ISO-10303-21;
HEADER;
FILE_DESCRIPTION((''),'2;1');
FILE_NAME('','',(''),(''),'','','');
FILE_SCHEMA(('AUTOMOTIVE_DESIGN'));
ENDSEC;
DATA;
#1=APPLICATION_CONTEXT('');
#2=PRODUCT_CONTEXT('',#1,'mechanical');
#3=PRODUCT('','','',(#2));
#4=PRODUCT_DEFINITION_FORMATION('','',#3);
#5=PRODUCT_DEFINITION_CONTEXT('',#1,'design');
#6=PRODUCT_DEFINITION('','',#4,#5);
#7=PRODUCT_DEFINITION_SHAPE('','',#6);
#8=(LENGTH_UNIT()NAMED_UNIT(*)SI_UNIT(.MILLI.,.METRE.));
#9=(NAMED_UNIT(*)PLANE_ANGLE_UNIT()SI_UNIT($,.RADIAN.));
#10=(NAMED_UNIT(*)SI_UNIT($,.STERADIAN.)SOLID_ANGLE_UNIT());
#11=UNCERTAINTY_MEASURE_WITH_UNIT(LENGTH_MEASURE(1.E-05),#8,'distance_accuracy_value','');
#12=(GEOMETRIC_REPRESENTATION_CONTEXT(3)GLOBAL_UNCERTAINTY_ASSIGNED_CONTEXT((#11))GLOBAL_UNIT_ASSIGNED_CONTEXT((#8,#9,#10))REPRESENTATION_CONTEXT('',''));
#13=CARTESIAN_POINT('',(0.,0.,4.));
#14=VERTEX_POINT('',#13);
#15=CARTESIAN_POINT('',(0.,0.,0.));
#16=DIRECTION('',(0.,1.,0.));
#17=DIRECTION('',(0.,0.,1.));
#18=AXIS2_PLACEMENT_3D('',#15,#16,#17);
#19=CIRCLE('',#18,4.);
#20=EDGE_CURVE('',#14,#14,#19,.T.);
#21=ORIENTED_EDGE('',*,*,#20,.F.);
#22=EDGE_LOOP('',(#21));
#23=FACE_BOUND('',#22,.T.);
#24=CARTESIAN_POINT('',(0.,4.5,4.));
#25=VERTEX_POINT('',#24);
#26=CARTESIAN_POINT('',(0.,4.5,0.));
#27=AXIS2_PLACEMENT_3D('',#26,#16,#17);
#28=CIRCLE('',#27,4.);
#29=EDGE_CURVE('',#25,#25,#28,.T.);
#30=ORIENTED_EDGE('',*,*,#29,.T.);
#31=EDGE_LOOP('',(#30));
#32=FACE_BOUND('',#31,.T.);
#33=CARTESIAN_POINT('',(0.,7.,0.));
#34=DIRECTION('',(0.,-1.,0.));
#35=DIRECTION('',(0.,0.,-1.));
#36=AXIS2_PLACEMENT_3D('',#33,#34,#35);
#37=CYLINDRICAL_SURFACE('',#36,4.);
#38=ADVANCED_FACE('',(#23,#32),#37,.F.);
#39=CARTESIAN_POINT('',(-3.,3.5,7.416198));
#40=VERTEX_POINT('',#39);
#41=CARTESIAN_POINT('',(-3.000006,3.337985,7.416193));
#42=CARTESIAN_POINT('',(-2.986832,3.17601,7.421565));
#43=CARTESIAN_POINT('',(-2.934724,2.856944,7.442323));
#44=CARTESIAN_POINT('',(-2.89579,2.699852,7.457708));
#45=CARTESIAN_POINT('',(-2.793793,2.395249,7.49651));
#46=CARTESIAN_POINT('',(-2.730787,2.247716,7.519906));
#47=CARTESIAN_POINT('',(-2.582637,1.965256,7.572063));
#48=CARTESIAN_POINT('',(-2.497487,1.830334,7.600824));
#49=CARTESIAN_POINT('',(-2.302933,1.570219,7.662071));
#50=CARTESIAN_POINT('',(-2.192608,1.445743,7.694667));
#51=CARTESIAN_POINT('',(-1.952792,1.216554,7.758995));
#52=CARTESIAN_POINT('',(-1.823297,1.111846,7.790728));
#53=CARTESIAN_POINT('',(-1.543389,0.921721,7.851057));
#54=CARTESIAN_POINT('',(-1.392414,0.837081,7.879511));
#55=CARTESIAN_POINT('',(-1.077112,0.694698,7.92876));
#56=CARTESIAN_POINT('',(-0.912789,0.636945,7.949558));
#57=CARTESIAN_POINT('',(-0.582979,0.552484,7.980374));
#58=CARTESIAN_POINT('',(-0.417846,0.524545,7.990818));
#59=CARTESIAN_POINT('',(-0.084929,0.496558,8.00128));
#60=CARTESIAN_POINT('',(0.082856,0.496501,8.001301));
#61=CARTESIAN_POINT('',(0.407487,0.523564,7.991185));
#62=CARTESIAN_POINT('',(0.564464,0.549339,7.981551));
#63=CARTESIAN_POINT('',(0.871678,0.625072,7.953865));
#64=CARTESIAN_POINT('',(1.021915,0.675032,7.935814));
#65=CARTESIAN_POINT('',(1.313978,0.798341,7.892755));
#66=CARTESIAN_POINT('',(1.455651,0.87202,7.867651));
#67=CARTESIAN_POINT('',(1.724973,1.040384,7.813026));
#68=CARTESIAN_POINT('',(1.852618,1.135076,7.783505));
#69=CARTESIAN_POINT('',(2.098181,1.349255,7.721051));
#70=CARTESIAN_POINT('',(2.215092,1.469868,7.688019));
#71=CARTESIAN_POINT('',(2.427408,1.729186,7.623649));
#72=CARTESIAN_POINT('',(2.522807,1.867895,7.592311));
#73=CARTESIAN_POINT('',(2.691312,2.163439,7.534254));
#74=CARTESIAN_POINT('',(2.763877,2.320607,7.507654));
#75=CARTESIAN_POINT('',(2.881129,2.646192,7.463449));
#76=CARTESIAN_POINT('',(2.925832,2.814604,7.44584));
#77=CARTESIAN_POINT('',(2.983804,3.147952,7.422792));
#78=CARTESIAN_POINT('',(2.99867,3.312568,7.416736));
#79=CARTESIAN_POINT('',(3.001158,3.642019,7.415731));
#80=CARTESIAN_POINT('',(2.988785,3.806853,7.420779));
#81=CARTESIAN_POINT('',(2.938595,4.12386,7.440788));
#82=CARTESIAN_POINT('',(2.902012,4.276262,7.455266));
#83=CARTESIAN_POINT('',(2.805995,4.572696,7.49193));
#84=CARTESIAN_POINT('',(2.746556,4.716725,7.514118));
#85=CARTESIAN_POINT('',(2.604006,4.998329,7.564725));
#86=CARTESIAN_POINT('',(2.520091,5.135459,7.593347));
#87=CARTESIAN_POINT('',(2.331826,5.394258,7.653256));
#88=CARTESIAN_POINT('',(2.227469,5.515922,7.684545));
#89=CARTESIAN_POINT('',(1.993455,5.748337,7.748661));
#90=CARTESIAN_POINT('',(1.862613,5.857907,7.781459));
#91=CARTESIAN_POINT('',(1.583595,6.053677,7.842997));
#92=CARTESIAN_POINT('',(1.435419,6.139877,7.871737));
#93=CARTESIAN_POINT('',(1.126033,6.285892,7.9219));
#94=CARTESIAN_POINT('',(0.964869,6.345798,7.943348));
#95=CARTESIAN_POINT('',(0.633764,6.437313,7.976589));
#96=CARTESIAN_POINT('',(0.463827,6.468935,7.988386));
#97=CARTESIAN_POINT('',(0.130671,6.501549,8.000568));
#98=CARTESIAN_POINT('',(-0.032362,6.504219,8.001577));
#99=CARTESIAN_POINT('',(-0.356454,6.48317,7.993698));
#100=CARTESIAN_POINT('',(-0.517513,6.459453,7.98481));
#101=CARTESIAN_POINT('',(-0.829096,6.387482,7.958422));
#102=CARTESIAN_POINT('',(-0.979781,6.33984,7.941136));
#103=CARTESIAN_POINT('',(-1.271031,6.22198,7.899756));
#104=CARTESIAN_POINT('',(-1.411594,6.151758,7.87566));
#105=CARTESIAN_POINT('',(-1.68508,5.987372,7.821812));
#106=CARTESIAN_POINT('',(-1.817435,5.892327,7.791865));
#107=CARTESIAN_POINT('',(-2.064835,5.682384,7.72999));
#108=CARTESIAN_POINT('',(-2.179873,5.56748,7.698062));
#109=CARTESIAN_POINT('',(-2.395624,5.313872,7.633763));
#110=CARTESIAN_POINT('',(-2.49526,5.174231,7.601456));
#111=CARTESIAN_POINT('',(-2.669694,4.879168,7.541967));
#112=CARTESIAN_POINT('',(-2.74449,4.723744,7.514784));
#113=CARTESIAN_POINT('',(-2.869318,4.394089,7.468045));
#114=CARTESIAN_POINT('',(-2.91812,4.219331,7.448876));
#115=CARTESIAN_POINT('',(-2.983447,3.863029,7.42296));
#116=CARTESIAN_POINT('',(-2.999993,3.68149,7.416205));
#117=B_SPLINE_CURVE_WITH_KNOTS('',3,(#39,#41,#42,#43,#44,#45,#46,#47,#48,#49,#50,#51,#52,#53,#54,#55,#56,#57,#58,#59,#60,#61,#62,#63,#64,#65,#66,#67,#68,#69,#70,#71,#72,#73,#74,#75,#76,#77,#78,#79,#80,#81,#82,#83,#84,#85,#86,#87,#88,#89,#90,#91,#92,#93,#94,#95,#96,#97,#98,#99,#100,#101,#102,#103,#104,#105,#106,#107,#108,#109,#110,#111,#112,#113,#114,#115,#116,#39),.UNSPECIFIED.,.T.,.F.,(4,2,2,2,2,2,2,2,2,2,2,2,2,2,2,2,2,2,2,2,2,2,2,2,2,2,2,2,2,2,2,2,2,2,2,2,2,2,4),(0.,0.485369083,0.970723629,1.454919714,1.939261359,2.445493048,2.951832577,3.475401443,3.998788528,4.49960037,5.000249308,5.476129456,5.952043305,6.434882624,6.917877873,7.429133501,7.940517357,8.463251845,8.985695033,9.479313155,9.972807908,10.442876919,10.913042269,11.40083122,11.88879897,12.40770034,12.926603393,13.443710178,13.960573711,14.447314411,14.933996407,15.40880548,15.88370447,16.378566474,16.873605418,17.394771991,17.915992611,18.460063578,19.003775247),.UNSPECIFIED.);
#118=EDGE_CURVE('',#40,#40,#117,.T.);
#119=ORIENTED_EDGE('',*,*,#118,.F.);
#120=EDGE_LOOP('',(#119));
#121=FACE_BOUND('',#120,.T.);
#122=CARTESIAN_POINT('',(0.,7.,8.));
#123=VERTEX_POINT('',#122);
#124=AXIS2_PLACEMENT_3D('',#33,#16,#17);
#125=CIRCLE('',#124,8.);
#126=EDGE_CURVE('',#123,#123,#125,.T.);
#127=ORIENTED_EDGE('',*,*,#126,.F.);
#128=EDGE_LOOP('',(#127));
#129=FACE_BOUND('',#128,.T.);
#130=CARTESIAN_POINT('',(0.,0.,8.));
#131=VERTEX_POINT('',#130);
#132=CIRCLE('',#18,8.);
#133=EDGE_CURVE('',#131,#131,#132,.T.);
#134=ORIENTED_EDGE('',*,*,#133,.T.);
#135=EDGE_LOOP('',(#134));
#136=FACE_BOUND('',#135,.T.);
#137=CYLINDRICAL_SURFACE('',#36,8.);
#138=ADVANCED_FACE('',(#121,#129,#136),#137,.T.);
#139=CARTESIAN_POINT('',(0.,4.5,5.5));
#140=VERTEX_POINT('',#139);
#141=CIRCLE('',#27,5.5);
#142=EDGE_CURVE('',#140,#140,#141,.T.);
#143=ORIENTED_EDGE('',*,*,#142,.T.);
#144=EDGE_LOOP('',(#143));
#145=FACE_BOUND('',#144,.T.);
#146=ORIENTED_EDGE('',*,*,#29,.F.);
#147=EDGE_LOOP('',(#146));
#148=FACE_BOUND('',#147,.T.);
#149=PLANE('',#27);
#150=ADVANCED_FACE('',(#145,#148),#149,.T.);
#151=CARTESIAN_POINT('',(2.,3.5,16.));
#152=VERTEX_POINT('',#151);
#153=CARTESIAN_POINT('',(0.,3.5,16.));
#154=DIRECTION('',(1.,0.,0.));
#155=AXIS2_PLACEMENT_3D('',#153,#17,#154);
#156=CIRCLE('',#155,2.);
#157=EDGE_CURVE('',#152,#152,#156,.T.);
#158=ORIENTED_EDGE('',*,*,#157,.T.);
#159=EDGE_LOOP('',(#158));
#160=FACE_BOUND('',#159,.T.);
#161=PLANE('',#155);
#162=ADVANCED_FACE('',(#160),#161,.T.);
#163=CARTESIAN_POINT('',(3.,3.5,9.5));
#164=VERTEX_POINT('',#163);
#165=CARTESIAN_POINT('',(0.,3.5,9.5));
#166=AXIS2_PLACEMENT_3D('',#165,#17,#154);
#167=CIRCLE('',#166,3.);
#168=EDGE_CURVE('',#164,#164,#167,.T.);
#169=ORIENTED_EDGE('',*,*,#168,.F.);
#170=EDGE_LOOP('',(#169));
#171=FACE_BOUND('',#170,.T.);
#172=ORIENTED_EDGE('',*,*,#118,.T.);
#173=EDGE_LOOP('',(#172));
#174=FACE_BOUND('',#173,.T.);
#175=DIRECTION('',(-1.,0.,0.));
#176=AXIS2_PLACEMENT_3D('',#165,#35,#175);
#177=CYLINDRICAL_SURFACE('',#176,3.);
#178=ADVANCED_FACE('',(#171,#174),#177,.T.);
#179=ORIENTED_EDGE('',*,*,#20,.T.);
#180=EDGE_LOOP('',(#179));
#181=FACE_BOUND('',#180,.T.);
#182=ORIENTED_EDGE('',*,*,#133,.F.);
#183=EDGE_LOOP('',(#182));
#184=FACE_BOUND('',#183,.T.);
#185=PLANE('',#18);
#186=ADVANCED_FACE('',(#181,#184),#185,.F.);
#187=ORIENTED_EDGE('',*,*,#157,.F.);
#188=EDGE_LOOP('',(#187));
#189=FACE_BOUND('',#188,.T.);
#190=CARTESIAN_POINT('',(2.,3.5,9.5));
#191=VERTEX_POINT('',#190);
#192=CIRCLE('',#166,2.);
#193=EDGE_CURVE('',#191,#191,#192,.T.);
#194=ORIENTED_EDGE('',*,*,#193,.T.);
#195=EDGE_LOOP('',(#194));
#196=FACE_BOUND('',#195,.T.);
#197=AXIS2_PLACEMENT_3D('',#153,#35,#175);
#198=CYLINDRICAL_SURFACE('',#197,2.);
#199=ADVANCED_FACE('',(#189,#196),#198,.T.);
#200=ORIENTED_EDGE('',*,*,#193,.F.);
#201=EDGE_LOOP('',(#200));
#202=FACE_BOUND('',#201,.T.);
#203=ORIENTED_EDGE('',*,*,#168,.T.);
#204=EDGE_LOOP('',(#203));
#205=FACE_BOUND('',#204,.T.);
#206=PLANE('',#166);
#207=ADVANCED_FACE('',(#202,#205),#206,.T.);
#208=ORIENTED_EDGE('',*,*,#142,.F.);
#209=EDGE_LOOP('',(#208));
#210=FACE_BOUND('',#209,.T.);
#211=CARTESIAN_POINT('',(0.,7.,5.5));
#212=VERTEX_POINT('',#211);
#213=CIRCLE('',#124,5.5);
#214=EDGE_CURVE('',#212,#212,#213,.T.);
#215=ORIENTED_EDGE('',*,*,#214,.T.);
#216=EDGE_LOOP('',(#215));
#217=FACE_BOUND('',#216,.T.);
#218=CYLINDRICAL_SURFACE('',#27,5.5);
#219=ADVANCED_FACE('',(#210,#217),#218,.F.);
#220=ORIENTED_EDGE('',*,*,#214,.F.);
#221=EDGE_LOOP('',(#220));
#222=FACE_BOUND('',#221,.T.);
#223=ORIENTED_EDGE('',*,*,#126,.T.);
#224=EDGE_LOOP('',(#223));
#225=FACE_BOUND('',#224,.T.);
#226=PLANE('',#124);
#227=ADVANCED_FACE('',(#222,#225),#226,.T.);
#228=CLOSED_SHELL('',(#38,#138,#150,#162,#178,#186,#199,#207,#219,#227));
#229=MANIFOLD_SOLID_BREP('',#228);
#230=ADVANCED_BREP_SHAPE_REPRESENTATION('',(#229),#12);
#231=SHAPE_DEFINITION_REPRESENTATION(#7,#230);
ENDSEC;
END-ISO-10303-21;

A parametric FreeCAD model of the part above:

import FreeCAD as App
import Part
import Sketcher

V = App.Vector

doc = App.newDocument("Part")
body = doc.addObject("PartDesign::Body", "Body")

# Sketch on XZ plane
sketch1 = doc.addObject("Sketcher::SketchObject", "Sketch")
body.addObject(sketch1)
sketch1.AttachmentSupport = (doc.XZ_Plane, [""])
sketch1.MapMode = "FlatFace"
sketch1.addGeometry(Part.Circle(V(0, 0, 0), V(0, 0, 1), 8), False)
sketch1.addGeometry(Part.Circle(V(0, 0, 0), V(0, 0, 1), 4), False)
sketch1.addConstraint(Sketcher.Constraint("Coincident", 0, 3, -1, 1))
sketch1.addConstraint(Sketcher.Constraint("Coincident", 1, 3, -1, 1))
sketch1.addConstraint(Sketcher.Constraint("Diameter", 0, 16.0))
sketch1.addConstraint(Sketcher.Constraint("Diameter", 1, 8.0))
pad1 = doc.addObject("PartDesign::Pad", "Pad")
body.addObject(pad1)
pad1.Profile = sketch1
pad1.Length = 7
pad1.Reversed = True

# Sketch on XY plane
sketch2 = doc.addObject("Sketcher::SketchObject", "Sketch001")
body.addObject(sketch2)
sketch2.AttachmentSupport = (doc.XY_Plane, [""])
sketch2.MapMode = "FlatFace"
sketch2.addGeometry(Part.Circle(V(0, 3.5, 0), V(0, 0, 1), 3), False)
sketch2.addConstraint(Sketcher.Constraint("PointOnObject", 0, 3, -2))
sketch2.addConstraint(Sketcher.Constraint("Diameter", 0, 6.0))
sketch2.addConstraint(Sketcher.Constraint("DistanceY", -1, 1, 0, 3, 3.5))
pad2 = doc.addObject("PartDesign::Pad", "Pad001")
body.addObject(pad2)
pad2.Profile = sketch2
pad2.Length = 9.5

# Sketch on XZ plane
sketch3 = doc.addObject("Sketcher::SketchObject", "Sketch002")
body.addObject(sketch3)
sketch3.AttachmentSupport = (doc.XZ_Plane, [""])
sketch3.MapMode = "FlatFace"
sketch3.AttachmentOffset = App.Placement(V(0, 0, -7), App.Rotation())
sketch3.addGeometry(Part.Circle(V(0, 0, 0), V(0, 0, 1), 4), False)
sketch3.addConstraint(Sketcher.Constraint("Coincident", 0, 3, -1, 1))
sketch3.addConstraint(Sketcher.Constraint("Diameter", 0, 8.0))
pocket1 = doc.addObject("PartDesign::Pocket", "Pocket")
body.addObject(pocket1)
pocket1.Profile = sketch3
pocket1.Length = 9.5
pocket1.Reversed = True

# Sketch on XY plane
sketch4 = doc.addObject("Sketcher::SketchObject", "Sketch003")
body.addObject(sketch4)
sketch4.AttachmentSupport = (doc.XY_Plane, [""])
sketch4.MapMode = "FlatFace"
sketch4.AttachmentOffset = App.Placement(V(0, 0, 9.5), App.Rotation())
sketch4.addGeometry(Part.Circle(V(0, 3.5, 0), V(0, 0, 1), 2), False)
sketch4.addConstraint(Sketcher.Constraint("PointOnObject", 0, 3, -2))
sketch4.addConstraint(Sketcher.Constraint("Diameter", 0, 4.0))
sketch4.addConstraint(Sketcher.Constraint("DistanceY", -1, 1, 0, 3, 3.5))
pad3 = doc.addObject("PartDesign::Pad", "Pad002")
body.addObject(pad3)
pad3.Profile = sketch4
pad3.Length = 6.5

# Sketch on XZ plane
sketch5 = doc.addObject("Sketcher::SketchObject", "Sketch004")
body.addObject(sketch5)
sketch5.AttachmentSupport = (doc.XZ_Plane, [""])
sketch5.MapMode = "FlatFace"
sketch5.AttachmentOffset = App.Placement(V(0, 0, -7), App.Rotation())
sketch5.addGeometry(Part.Circle(V(0, 0, 0), V(0, 0, 1), 6), False)
sketch5.addConstraint(Sketcher.Constraint("Coincident", 0, 3, -1, 1))
sketch5.addConstraint(Sketcher.Constraint("Diameter", 0, 11.0))
pocket2 = doc.addObject("PartDesign::Pocket", "Pocket001")
body.addObject(pocket2)
pocket2.Profile = sketch5
pocket2.Length = 2.5
pocket2.Reversed = True

doc.recompute()
